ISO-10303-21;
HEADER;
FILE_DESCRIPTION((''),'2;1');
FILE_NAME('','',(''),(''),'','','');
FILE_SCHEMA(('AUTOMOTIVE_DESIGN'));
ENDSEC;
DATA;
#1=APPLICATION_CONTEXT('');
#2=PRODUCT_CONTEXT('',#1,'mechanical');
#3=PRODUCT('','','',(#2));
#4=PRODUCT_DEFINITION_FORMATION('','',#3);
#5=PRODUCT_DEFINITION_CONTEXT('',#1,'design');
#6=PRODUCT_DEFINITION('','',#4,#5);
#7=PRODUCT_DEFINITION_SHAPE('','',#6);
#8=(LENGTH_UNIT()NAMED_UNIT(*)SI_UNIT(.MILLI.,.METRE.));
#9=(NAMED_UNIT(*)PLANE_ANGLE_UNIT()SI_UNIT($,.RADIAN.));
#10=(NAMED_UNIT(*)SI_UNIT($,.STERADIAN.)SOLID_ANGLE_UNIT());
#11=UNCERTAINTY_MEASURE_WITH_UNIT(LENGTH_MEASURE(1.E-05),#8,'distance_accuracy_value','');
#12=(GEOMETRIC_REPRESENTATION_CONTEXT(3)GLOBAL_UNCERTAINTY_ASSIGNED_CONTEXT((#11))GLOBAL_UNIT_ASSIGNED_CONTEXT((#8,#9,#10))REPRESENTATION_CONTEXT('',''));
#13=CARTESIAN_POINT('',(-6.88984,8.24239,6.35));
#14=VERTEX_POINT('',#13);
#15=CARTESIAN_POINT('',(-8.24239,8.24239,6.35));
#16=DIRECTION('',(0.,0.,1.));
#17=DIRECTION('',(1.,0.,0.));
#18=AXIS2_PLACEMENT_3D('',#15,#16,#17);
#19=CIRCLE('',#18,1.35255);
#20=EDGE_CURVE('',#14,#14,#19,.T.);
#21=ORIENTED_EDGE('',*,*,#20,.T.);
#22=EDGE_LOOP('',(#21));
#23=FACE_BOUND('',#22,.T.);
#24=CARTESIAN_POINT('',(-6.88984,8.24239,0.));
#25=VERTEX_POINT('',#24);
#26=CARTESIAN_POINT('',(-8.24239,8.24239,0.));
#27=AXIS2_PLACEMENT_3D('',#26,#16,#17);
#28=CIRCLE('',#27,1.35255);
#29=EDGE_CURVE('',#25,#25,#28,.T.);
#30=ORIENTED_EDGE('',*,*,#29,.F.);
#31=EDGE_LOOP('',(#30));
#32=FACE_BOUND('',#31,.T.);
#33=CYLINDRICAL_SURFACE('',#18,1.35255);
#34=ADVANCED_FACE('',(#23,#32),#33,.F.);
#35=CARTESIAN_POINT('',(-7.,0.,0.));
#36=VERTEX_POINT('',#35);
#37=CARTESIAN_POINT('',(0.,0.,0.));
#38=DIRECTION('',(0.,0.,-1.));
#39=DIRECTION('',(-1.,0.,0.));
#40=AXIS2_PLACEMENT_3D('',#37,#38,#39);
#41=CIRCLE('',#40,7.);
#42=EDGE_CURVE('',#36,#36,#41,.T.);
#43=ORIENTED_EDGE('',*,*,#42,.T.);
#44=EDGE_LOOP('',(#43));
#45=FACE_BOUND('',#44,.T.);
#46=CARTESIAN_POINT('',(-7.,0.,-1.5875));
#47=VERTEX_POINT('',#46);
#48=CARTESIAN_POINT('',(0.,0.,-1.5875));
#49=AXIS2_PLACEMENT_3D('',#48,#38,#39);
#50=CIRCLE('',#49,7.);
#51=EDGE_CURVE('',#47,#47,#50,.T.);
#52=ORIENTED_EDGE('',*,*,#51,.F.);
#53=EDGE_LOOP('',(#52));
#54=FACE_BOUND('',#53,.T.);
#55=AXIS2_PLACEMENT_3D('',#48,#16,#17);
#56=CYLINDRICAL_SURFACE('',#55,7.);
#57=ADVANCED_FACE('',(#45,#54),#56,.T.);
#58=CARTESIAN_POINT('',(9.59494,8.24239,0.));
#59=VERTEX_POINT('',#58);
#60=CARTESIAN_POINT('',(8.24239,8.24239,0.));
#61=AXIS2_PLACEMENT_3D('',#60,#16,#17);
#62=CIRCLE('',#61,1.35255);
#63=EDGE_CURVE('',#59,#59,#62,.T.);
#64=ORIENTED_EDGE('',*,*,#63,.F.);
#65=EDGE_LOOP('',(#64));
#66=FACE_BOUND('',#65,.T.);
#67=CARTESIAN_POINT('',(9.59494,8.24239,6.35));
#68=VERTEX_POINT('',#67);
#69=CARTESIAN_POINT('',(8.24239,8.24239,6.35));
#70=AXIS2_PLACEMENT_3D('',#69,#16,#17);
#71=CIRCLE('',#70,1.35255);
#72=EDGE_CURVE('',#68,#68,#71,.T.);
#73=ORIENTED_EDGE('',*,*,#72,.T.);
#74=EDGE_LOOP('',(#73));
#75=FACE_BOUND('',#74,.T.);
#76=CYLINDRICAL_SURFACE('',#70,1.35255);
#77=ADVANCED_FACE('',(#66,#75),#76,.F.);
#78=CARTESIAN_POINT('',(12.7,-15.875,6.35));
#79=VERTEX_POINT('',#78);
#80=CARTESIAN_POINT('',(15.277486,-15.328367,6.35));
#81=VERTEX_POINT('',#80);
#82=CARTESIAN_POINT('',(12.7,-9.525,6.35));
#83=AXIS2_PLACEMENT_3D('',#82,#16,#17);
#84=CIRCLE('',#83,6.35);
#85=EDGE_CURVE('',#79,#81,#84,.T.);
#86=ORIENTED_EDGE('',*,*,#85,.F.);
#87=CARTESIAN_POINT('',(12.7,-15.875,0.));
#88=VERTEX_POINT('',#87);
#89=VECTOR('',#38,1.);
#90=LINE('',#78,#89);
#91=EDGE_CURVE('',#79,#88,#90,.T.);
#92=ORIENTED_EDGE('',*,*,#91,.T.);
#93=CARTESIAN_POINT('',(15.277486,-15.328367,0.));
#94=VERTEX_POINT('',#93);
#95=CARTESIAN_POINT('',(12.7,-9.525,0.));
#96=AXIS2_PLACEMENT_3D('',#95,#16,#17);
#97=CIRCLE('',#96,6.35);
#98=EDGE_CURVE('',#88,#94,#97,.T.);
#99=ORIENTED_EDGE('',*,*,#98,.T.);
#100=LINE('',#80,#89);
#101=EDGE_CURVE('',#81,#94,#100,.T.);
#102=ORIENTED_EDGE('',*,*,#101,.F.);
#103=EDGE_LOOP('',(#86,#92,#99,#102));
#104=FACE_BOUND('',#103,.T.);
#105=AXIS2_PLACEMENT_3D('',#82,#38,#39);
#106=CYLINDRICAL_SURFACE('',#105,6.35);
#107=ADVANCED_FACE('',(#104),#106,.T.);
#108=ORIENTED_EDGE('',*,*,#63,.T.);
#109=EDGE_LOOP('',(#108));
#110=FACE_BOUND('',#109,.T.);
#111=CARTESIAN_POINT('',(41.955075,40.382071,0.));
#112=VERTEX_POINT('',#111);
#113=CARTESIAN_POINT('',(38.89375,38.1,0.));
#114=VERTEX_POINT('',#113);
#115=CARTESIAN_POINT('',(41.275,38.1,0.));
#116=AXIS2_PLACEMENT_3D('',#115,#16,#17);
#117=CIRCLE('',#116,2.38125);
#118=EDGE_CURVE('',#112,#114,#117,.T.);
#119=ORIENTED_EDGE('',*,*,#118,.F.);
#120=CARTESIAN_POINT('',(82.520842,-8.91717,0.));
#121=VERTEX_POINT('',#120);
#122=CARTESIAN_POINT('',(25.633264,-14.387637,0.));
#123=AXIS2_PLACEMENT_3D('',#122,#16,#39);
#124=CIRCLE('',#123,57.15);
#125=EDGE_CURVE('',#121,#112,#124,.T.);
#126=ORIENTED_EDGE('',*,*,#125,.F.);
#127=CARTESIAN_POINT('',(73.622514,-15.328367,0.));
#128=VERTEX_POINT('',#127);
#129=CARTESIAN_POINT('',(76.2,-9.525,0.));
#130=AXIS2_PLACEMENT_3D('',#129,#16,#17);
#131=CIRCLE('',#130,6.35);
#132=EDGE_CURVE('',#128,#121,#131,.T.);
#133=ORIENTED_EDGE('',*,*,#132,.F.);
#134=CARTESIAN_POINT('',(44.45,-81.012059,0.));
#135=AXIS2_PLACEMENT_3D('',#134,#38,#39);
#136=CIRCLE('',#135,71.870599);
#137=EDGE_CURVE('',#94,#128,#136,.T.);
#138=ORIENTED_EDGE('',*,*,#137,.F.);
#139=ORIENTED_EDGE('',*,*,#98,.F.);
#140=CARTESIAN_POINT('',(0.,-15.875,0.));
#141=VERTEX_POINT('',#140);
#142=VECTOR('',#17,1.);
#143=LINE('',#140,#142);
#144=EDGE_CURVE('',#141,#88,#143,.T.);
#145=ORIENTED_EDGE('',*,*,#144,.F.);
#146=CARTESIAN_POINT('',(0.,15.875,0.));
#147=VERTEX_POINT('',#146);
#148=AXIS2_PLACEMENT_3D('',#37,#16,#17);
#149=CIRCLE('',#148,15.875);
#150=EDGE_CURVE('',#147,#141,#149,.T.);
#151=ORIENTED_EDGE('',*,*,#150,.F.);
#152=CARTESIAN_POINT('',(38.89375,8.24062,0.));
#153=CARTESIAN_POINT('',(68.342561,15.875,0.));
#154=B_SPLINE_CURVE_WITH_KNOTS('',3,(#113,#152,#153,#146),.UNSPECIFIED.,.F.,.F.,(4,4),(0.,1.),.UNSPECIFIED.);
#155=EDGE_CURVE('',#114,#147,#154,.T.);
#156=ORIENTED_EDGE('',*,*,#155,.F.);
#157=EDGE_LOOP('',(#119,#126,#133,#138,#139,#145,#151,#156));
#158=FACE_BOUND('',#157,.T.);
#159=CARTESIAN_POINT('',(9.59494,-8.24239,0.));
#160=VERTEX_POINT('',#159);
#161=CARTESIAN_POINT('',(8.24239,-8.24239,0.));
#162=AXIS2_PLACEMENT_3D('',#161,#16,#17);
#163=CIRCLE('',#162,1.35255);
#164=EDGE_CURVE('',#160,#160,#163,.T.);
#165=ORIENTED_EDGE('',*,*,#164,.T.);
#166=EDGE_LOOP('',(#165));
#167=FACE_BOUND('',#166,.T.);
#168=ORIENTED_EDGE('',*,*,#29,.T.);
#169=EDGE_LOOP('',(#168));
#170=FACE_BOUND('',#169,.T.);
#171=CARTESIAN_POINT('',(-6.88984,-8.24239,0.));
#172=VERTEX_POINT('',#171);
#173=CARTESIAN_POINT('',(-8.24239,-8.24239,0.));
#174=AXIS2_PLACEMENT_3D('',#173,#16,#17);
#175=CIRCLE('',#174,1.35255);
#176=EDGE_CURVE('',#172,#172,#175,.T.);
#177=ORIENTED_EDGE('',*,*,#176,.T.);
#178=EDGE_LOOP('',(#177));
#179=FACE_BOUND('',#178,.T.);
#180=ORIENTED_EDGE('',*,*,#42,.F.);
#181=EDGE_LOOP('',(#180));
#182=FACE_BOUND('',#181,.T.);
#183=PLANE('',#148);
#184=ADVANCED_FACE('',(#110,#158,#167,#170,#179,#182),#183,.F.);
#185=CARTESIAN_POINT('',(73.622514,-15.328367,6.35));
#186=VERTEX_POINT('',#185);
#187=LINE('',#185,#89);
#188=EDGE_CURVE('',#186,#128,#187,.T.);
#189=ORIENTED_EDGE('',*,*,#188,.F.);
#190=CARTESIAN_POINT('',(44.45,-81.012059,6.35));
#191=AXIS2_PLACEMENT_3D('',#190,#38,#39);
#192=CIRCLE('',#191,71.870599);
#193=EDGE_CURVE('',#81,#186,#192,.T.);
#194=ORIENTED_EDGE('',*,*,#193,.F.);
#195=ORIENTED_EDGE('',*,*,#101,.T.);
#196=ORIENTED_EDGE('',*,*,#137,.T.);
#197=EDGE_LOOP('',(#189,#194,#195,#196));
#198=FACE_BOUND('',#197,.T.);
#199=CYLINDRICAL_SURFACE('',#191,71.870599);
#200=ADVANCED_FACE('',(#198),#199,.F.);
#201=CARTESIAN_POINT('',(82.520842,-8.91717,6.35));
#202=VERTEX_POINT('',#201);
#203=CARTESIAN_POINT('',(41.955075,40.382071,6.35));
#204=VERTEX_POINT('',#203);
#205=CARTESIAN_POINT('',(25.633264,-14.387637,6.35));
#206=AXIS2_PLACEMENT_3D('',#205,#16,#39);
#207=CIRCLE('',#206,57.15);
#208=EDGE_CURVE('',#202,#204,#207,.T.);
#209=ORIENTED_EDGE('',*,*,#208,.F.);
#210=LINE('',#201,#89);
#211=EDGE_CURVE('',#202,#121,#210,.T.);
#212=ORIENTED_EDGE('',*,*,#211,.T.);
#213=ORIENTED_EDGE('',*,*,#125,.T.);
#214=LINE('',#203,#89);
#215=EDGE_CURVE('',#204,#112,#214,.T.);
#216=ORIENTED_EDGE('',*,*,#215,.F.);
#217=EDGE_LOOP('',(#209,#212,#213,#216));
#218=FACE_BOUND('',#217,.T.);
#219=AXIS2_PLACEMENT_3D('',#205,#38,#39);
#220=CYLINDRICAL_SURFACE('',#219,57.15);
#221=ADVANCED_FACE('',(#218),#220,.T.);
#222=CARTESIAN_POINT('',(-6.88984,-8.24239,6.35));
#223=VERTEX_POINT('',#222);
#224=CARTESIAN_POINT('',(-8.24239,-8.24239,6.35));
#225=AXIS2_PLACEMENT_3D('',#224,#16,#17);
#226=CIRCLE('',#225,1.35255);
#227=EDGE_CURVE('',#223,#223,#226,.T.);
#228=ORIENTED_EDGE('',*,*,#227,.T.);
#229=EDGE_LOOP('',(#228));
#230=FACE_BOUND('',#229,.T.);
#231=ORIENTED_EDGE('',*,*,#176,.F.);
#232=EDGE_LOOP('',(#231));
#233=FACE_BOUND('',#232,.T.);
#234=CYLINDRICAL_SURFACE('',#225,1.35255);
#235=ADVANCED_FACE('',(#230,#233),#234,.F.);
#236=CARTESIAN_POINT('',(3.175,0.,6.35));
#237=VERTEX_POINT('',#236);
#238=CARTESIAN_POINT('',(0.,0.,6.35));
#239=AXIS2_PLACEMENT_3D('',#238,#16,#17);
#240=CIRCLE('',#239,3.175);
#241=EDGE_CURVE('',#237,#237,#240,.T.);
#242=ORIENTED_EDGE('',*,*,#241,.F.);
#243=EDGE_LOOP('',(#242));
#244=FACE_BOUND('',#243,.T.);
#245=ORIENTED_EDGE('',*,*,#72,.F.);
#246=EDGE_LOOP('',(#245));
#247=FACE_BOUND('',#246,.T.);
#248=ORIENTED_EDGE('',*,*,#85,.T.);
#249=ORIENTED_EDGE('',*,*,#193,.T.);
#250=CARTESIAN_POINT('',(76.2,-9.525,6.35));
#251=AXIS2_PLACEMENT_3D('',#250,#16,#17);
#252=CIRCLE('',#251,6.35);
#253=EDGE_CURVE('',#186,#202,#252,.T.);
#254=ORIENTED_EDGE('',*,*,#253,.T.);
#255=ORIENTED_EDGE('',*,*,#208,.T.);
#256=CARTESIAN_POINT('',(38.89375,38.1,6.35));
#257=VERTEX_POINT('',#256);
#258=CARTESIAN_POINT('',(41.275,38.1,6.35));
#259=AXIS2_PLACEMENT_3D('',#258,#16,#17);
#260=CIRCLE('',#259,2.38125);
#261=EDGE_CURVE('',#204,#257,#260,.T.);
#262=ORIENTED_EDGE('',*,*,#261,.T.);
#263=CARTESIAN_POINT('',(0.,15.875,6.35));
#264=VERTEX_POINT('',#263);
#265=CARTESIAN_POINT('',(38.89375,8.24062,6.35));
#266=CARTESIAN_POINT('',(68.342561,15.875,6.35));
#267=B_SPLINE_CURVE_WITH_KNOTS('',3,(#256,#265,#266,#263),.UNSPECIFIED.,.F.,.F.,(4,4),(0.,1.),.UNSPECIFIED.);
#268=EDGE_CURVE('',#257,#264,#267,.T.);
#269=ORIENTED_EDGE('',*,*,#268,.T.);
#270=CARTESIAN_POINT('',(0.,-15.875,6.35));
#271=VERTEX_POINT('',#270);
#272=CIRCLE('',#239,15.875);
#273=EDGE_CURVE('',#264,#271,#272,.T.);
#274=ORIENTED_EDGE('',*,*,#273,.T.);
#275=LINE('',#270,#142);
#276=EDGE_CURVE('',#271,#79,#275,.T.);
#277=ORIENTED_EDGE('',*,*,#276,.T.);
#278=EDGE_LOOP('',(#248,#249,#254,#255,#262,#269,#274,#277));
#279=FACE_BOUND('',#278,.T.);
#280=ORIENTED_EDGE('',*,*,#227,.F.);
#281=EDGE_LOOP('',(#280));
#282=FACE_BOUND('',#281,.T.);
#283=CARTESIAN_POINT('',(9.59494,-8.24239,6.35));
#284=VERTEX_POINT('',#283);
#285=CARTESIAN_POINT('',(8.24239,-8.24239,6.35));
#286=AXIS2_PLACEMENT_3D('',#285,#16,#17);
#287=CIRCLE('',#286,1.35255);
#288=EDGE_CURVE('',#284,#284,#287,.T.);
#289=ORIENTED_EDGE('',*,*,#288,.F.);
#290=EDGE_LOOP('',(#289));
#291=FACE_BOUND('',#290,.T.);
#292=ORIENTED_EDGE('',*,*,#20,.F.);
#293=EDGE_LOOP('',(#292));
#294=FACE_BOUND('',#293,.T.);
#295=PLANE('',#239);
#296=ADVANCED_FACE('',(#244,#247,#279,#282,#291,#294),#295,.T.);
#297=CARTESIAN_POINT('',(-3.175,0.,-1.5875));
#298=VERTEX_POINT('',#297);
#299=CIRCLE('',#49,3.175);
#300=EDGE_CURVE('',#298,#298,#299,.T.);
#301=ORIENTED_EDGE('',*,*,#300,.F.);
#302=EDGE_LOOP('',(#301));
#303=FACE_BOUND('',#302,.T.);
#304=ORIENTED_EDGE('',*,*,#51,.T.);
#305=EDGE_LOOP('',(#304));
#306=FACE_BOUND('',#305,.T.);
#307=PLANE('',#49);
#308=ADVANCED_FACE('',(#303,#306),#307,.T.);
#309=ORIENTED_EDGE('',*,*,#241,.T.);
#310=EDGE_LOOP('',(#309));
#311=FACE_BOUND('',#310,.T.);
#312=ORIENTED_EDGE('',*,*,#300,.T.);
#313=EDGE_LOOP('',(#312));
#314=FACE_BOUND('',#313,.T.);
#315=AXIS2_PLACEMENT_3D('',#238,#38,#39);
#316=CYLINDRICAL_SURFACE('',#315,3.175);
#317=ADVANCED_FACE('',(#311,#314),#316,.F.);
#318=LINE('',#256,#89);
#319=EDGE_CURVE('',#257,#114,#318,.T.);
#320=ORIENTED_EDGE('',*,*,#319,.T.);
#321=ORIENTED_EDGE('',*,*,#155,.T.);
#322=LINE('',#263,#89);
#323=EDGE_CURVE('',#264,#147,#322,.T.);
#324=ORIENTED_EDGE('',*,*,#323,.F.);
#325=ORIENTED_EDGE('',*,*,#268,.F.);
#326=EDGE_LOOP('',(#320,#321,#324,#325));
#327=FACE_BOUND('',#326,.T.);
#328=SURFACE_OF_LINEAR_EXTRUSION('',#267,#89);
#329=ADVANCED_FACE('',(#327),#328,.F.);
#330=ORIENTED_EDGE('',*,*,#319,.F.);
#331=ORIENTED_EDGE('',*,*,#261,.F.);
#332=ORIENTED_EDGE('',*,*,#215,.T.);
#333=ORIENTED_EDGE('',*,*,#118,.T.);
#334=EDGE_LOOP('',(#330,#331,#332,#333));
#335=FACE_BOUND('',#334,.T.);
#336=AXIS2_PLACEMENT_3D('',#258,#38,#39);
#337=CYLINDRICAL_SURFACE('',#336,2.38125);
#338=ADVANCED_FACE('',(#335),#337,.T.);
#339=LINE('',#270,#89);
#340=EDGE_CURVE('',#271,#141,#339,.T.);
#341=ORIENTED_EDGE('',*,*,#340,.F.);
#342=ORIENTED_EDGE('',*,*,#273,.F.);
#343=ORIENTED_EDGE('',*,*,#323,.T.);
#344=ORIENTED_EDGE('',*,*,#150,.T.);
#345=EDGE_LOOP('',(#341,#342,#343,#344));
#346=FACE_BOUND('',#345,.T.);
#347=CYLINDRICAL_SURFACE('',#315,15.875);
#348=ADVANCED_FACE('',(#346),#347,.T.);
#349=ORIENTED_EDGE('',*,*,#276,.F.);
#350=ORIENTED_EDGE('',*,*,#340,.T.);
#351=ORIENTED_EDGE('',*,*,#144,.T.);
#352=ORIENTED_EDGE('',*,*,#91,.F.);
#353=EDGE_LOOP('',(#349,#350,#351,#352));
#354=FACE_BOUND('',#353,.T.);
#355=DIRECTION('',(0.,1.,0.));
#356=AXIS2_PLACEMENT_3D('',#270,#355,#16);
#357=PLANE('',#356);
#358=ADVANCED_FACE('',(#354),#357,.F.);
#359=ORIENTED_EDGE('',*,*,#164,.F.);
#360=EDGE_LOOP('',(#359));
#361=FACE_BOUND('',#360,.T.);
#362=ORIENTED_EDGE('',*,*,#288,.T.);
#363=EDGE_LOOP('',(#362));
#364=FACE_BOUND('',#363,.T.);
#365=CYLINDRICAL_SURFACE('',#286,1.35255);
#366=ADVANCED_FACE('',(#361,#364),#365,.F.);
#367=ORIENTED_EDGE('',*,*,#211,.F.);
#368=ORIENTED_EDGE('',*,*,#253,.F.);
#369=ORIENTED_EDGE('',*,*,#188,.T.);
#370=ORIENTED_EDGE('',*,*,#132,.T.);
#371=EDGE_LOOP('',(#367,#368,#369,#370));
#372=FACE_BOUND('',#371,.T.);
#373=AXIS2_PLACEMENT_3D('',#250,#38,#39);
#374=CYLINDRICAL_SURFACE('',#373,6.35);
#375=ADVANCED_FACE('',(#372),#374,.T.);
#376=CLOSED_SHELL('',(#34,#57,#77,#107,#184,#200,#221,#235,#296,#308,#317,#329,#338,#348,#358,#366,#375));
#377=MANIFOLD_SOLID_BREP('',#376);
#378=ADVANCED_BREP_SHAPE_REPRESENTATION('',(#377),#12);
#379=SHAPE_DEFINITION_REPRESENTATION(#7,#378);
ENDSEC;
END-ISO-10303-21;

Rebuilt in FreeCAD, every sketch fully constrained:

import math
import FreeCAD as App
import Part
import Sketcher

V = App.Vector
Q = App.Units.Quantity

doc = App.newDocument("Part")
body = doc.addObject("PartDesign::Body", "Body")

sketch1 = body.newObject("Sketcher::SketchObject", "Sketch")
sketch1.AttachmentSupport = (doc.getObject("XY_Plane"), [""])
sketch1.MapMode = "FlatFace"
sketch1.addGeometry(Part.LineSegment(V(0, -15.875, 0), V(12.7, -15.875, 0)), False)
sketch1.addGeometry(Part.ArcOfCircle(Part.Circle(V(12.7, -9.525, 0), V(0, 0, 1), 6.35), math.radians(-90), math.radians(-66.052254)), False)
sketch1.addGeometry(Part.ArcOfCircle(Part.Circle(V(44.45, -81.012059, 0), V(0, 0, 1), 71.870599), math.radians(66.052254), math.radians(113.947746)), False)
sketch1.addGeometry(Part.ArcOfCircle(Part.Circle(V(76.2, -9.525, 0), V(0, 0, 1), 6.35), math.radians(-113.947746), math.radians(5.492831)), False)
sketch1.addGeometry(Part.ArcOfCircle(Part.Circle(V(25.633264, -14.387637, 0), V(0, 0, 1), 57.15), math.radians(5.492831), math.radians(73.405523)), False)
sketch1.addGeometry(Part.ArcOfCircle(Part.Circle(V(41.275, 38.1, 0), V(0, 0, 1), 2.38125), math.radians(73.405523), math.radians(180)), False)
sketch1.addGeometry(Part.BSplineCurve([V(38.89375, 38.1, 0), V(38.89375, 8.24062, 0), V(68.342561, 15.875, 0), V(0, 15.875, 0)], [4, 4], [0, 1], False, 3, [1, 1, 1, 1], False), False)
sketch1.addGeometry(Part.ArcOfCircle(Part.Circle(V(0, 0, 0), V(0, 0, 1), 15.875), math.radians(90), math.radians(270)), False)
sketch1.addGeometry(Part.Circle(V(0, 0, 0), V(0, 0, 1), 3.175), False)
sketch1.addConstraint(Sketcher.Constraint("Block", 6))
sketch1.addConstraint(Sketcher.Constraint("Tangent", 0, 2, 1, 1))
sketch1.addConstraint(Sketcher.Constraint("Tangent", 1, 2, 2, 2))
sketch1.addConstraint(Sketcher.Constraint("Tangent", 2, 1, 3, 1))
sketch1.addConstraint(Sketcher.Constraint("Tangent", 3, 2, 4, 1))
sketch1.addConstraint(Sketcher.Constraint("Tangent", 4, 2, 5, 1))
sketch1.addConstraint(Sketcher.Constraint("Coincident", 5, 2, 6, 1))
sketch1.addConstraint(Sketcher.Constraint("Coincident", 6, 2, 7, 1))
sketch1.addConstraint(Sketcher.Constraint("Tangent", 7, 2, 0, 1))
sketch1.addConstraint(Sketcher.Constraint("Horizontal", 0))
sketch1.addConstraint(Sketcher.Constraint("Coincident", 7, 3, -1, 1))
sketch1.addConstraint(Sketcher.Constraint("Coincident", 8, 3, -1, 1))
sketch1.addConstraint(Sketcher.Constraint("Equal", 1, 3))
sketch1.addConstraint(Sketcher.Constraint("Horizontal", 1, 3, 3, 3))
sketch1.addConstraint(Sketcher.Constraint("Diameter", 8, Q("0.25 in")))
sketch1.addConstraint(Sketcher.Constraint("Radius", 1, Q("0.25 in")))
sketch1.addConstraint(Sketcher.Constraint("Radius", 4, Q("2.25 in")))
sketch1.addConstraint(Sketcher.Constraint("DistanceX", 0, 1, 0, 2, Q("0.5 in")))
sketch1.addConstraint(Sketcher.Constraint("DistanceX", -1, 1, 3, 3, Q("3 in")))
sketch1.addConstraint(Sketcher.Constraint("Radius", 5, Q("0.09375 in")))
sketch1.addConstraint(Sketcher.Constraint("DistanceY", -1, 1, 5, 3, Q("1.5 in")))
sketch1.addConstraint(Sketcher.Constraint("Radius", 2, Q("71.870599 mm")))
pad1 = body.newObject("PartDesign::Pad", "Pad")
pad1.Profile = sketch1
pad1.Length = Q("0.25 in")

sketch2 = body.newObject("Sketcher::SketchObject", "Sketch001")
sketch2.AttachmentSupport = (doc.getObject("XY_Plane"), [""])
sketch2.MapMode = "FlatFace"
sketch2.AttachmentOffset = App.Placement(V(0, 0, 0.25 * 25.4), App.Rotation())
sketch2.addGeometry(Part.Circle(V(8.2, 8.2, 0), V(0, 0, 1), 1.4), False)
sketch2.addGeometry(Part.Circle(V(-8.2, 8.2, 0), V(0, 0, 1), 1.4), False)
sketch2.addGeometry(Part.Circle(V(8.2, -8.2, 0), V(0, 0, 1), 1.4), False)
sketch2.addGeometry(Part.Circle(V(-8.2, -8.2, 0), V(0, 0, 1), 1.4), False)
sketch2.addConstraint(Sketcher.Constraint("Equal", 0, 1))
sketch2.addConstraint(Sketcher.Constraint("Equal", 1, 2))
sketch2.addConstraint(Sketcher.Constraint("Equal", 2, 3))
sketch2.addConstraint(Sketcher.Constraint("Symmetric", 1, 3, 2, 3, -1, 1))
sketch2.addConstraint(Sketcher.Constraint("Symmetric", 0, 3, 3, 3, -1, 1))
sketch2.addConstraint(Sketcher.Constraint("Symmetric", 0, 3, 1, 3, -2))
sketch2.addConstraint(Sketcher.Constraint("Diameter", 0, Q("0.1065 in")))
sketch2.addConstraint(Sketcher.Constraint("DistanceX", -1, 1, 0, 3, Q("8.24239 mm")))
sketch2.addConstraint(Sketcher.Constraint("DistanceY", -1, 1, 0, 3, Q("8.24239 mm")))
doc.recompute()
hole = body.newObject("PartDesign::Hole", "Hole")
hole.Profile = sketch2
hole.ThreadType = "None"
hole.Diameter = Q("0.1065 in")
hole.DepthType = "ThroughAll"

sketch3 = body.newObject("Sketcher::SketchObject", "Sketch002")
sketch3.AttachmentSupport = (doc.getObject("XY_Plane"), [""])
sketch3.MapMode = "FlatFace"
sketch3.AttachmentOffset = App.Placement(V(0, 0, -0.0625 * 25.4), App.Rotation())
sketch3.addGeometry(Part.Circle(V(0, 0, 0), V(0, 0, 1), 7), False)
sketch3.addGeometry(Part.Circle(V(0, 0, 0), V(0, 0, 1), 3.2), False)
sketch3.addConstraint(Sketcher.Constraint("Coincident", 0, 3, -1, 1))
sketch3.addConstraint(Sketcher.Constraint("Coincident", 1, 3, -1, 1))
sketch3.addConstraint(Sketcher.Constraint("Diameter", 1, Q("0.25 in")))
sketch3.addConstraint(Sketcher.Constraint("Diameter", 0, Q("14 mm")))
pad2 = body.newObject("PartDesign::Pad", "Pad001")
pad2.Profile = sketch3
pad2.Length = Q("0.0625 in")

doc.recompute()
